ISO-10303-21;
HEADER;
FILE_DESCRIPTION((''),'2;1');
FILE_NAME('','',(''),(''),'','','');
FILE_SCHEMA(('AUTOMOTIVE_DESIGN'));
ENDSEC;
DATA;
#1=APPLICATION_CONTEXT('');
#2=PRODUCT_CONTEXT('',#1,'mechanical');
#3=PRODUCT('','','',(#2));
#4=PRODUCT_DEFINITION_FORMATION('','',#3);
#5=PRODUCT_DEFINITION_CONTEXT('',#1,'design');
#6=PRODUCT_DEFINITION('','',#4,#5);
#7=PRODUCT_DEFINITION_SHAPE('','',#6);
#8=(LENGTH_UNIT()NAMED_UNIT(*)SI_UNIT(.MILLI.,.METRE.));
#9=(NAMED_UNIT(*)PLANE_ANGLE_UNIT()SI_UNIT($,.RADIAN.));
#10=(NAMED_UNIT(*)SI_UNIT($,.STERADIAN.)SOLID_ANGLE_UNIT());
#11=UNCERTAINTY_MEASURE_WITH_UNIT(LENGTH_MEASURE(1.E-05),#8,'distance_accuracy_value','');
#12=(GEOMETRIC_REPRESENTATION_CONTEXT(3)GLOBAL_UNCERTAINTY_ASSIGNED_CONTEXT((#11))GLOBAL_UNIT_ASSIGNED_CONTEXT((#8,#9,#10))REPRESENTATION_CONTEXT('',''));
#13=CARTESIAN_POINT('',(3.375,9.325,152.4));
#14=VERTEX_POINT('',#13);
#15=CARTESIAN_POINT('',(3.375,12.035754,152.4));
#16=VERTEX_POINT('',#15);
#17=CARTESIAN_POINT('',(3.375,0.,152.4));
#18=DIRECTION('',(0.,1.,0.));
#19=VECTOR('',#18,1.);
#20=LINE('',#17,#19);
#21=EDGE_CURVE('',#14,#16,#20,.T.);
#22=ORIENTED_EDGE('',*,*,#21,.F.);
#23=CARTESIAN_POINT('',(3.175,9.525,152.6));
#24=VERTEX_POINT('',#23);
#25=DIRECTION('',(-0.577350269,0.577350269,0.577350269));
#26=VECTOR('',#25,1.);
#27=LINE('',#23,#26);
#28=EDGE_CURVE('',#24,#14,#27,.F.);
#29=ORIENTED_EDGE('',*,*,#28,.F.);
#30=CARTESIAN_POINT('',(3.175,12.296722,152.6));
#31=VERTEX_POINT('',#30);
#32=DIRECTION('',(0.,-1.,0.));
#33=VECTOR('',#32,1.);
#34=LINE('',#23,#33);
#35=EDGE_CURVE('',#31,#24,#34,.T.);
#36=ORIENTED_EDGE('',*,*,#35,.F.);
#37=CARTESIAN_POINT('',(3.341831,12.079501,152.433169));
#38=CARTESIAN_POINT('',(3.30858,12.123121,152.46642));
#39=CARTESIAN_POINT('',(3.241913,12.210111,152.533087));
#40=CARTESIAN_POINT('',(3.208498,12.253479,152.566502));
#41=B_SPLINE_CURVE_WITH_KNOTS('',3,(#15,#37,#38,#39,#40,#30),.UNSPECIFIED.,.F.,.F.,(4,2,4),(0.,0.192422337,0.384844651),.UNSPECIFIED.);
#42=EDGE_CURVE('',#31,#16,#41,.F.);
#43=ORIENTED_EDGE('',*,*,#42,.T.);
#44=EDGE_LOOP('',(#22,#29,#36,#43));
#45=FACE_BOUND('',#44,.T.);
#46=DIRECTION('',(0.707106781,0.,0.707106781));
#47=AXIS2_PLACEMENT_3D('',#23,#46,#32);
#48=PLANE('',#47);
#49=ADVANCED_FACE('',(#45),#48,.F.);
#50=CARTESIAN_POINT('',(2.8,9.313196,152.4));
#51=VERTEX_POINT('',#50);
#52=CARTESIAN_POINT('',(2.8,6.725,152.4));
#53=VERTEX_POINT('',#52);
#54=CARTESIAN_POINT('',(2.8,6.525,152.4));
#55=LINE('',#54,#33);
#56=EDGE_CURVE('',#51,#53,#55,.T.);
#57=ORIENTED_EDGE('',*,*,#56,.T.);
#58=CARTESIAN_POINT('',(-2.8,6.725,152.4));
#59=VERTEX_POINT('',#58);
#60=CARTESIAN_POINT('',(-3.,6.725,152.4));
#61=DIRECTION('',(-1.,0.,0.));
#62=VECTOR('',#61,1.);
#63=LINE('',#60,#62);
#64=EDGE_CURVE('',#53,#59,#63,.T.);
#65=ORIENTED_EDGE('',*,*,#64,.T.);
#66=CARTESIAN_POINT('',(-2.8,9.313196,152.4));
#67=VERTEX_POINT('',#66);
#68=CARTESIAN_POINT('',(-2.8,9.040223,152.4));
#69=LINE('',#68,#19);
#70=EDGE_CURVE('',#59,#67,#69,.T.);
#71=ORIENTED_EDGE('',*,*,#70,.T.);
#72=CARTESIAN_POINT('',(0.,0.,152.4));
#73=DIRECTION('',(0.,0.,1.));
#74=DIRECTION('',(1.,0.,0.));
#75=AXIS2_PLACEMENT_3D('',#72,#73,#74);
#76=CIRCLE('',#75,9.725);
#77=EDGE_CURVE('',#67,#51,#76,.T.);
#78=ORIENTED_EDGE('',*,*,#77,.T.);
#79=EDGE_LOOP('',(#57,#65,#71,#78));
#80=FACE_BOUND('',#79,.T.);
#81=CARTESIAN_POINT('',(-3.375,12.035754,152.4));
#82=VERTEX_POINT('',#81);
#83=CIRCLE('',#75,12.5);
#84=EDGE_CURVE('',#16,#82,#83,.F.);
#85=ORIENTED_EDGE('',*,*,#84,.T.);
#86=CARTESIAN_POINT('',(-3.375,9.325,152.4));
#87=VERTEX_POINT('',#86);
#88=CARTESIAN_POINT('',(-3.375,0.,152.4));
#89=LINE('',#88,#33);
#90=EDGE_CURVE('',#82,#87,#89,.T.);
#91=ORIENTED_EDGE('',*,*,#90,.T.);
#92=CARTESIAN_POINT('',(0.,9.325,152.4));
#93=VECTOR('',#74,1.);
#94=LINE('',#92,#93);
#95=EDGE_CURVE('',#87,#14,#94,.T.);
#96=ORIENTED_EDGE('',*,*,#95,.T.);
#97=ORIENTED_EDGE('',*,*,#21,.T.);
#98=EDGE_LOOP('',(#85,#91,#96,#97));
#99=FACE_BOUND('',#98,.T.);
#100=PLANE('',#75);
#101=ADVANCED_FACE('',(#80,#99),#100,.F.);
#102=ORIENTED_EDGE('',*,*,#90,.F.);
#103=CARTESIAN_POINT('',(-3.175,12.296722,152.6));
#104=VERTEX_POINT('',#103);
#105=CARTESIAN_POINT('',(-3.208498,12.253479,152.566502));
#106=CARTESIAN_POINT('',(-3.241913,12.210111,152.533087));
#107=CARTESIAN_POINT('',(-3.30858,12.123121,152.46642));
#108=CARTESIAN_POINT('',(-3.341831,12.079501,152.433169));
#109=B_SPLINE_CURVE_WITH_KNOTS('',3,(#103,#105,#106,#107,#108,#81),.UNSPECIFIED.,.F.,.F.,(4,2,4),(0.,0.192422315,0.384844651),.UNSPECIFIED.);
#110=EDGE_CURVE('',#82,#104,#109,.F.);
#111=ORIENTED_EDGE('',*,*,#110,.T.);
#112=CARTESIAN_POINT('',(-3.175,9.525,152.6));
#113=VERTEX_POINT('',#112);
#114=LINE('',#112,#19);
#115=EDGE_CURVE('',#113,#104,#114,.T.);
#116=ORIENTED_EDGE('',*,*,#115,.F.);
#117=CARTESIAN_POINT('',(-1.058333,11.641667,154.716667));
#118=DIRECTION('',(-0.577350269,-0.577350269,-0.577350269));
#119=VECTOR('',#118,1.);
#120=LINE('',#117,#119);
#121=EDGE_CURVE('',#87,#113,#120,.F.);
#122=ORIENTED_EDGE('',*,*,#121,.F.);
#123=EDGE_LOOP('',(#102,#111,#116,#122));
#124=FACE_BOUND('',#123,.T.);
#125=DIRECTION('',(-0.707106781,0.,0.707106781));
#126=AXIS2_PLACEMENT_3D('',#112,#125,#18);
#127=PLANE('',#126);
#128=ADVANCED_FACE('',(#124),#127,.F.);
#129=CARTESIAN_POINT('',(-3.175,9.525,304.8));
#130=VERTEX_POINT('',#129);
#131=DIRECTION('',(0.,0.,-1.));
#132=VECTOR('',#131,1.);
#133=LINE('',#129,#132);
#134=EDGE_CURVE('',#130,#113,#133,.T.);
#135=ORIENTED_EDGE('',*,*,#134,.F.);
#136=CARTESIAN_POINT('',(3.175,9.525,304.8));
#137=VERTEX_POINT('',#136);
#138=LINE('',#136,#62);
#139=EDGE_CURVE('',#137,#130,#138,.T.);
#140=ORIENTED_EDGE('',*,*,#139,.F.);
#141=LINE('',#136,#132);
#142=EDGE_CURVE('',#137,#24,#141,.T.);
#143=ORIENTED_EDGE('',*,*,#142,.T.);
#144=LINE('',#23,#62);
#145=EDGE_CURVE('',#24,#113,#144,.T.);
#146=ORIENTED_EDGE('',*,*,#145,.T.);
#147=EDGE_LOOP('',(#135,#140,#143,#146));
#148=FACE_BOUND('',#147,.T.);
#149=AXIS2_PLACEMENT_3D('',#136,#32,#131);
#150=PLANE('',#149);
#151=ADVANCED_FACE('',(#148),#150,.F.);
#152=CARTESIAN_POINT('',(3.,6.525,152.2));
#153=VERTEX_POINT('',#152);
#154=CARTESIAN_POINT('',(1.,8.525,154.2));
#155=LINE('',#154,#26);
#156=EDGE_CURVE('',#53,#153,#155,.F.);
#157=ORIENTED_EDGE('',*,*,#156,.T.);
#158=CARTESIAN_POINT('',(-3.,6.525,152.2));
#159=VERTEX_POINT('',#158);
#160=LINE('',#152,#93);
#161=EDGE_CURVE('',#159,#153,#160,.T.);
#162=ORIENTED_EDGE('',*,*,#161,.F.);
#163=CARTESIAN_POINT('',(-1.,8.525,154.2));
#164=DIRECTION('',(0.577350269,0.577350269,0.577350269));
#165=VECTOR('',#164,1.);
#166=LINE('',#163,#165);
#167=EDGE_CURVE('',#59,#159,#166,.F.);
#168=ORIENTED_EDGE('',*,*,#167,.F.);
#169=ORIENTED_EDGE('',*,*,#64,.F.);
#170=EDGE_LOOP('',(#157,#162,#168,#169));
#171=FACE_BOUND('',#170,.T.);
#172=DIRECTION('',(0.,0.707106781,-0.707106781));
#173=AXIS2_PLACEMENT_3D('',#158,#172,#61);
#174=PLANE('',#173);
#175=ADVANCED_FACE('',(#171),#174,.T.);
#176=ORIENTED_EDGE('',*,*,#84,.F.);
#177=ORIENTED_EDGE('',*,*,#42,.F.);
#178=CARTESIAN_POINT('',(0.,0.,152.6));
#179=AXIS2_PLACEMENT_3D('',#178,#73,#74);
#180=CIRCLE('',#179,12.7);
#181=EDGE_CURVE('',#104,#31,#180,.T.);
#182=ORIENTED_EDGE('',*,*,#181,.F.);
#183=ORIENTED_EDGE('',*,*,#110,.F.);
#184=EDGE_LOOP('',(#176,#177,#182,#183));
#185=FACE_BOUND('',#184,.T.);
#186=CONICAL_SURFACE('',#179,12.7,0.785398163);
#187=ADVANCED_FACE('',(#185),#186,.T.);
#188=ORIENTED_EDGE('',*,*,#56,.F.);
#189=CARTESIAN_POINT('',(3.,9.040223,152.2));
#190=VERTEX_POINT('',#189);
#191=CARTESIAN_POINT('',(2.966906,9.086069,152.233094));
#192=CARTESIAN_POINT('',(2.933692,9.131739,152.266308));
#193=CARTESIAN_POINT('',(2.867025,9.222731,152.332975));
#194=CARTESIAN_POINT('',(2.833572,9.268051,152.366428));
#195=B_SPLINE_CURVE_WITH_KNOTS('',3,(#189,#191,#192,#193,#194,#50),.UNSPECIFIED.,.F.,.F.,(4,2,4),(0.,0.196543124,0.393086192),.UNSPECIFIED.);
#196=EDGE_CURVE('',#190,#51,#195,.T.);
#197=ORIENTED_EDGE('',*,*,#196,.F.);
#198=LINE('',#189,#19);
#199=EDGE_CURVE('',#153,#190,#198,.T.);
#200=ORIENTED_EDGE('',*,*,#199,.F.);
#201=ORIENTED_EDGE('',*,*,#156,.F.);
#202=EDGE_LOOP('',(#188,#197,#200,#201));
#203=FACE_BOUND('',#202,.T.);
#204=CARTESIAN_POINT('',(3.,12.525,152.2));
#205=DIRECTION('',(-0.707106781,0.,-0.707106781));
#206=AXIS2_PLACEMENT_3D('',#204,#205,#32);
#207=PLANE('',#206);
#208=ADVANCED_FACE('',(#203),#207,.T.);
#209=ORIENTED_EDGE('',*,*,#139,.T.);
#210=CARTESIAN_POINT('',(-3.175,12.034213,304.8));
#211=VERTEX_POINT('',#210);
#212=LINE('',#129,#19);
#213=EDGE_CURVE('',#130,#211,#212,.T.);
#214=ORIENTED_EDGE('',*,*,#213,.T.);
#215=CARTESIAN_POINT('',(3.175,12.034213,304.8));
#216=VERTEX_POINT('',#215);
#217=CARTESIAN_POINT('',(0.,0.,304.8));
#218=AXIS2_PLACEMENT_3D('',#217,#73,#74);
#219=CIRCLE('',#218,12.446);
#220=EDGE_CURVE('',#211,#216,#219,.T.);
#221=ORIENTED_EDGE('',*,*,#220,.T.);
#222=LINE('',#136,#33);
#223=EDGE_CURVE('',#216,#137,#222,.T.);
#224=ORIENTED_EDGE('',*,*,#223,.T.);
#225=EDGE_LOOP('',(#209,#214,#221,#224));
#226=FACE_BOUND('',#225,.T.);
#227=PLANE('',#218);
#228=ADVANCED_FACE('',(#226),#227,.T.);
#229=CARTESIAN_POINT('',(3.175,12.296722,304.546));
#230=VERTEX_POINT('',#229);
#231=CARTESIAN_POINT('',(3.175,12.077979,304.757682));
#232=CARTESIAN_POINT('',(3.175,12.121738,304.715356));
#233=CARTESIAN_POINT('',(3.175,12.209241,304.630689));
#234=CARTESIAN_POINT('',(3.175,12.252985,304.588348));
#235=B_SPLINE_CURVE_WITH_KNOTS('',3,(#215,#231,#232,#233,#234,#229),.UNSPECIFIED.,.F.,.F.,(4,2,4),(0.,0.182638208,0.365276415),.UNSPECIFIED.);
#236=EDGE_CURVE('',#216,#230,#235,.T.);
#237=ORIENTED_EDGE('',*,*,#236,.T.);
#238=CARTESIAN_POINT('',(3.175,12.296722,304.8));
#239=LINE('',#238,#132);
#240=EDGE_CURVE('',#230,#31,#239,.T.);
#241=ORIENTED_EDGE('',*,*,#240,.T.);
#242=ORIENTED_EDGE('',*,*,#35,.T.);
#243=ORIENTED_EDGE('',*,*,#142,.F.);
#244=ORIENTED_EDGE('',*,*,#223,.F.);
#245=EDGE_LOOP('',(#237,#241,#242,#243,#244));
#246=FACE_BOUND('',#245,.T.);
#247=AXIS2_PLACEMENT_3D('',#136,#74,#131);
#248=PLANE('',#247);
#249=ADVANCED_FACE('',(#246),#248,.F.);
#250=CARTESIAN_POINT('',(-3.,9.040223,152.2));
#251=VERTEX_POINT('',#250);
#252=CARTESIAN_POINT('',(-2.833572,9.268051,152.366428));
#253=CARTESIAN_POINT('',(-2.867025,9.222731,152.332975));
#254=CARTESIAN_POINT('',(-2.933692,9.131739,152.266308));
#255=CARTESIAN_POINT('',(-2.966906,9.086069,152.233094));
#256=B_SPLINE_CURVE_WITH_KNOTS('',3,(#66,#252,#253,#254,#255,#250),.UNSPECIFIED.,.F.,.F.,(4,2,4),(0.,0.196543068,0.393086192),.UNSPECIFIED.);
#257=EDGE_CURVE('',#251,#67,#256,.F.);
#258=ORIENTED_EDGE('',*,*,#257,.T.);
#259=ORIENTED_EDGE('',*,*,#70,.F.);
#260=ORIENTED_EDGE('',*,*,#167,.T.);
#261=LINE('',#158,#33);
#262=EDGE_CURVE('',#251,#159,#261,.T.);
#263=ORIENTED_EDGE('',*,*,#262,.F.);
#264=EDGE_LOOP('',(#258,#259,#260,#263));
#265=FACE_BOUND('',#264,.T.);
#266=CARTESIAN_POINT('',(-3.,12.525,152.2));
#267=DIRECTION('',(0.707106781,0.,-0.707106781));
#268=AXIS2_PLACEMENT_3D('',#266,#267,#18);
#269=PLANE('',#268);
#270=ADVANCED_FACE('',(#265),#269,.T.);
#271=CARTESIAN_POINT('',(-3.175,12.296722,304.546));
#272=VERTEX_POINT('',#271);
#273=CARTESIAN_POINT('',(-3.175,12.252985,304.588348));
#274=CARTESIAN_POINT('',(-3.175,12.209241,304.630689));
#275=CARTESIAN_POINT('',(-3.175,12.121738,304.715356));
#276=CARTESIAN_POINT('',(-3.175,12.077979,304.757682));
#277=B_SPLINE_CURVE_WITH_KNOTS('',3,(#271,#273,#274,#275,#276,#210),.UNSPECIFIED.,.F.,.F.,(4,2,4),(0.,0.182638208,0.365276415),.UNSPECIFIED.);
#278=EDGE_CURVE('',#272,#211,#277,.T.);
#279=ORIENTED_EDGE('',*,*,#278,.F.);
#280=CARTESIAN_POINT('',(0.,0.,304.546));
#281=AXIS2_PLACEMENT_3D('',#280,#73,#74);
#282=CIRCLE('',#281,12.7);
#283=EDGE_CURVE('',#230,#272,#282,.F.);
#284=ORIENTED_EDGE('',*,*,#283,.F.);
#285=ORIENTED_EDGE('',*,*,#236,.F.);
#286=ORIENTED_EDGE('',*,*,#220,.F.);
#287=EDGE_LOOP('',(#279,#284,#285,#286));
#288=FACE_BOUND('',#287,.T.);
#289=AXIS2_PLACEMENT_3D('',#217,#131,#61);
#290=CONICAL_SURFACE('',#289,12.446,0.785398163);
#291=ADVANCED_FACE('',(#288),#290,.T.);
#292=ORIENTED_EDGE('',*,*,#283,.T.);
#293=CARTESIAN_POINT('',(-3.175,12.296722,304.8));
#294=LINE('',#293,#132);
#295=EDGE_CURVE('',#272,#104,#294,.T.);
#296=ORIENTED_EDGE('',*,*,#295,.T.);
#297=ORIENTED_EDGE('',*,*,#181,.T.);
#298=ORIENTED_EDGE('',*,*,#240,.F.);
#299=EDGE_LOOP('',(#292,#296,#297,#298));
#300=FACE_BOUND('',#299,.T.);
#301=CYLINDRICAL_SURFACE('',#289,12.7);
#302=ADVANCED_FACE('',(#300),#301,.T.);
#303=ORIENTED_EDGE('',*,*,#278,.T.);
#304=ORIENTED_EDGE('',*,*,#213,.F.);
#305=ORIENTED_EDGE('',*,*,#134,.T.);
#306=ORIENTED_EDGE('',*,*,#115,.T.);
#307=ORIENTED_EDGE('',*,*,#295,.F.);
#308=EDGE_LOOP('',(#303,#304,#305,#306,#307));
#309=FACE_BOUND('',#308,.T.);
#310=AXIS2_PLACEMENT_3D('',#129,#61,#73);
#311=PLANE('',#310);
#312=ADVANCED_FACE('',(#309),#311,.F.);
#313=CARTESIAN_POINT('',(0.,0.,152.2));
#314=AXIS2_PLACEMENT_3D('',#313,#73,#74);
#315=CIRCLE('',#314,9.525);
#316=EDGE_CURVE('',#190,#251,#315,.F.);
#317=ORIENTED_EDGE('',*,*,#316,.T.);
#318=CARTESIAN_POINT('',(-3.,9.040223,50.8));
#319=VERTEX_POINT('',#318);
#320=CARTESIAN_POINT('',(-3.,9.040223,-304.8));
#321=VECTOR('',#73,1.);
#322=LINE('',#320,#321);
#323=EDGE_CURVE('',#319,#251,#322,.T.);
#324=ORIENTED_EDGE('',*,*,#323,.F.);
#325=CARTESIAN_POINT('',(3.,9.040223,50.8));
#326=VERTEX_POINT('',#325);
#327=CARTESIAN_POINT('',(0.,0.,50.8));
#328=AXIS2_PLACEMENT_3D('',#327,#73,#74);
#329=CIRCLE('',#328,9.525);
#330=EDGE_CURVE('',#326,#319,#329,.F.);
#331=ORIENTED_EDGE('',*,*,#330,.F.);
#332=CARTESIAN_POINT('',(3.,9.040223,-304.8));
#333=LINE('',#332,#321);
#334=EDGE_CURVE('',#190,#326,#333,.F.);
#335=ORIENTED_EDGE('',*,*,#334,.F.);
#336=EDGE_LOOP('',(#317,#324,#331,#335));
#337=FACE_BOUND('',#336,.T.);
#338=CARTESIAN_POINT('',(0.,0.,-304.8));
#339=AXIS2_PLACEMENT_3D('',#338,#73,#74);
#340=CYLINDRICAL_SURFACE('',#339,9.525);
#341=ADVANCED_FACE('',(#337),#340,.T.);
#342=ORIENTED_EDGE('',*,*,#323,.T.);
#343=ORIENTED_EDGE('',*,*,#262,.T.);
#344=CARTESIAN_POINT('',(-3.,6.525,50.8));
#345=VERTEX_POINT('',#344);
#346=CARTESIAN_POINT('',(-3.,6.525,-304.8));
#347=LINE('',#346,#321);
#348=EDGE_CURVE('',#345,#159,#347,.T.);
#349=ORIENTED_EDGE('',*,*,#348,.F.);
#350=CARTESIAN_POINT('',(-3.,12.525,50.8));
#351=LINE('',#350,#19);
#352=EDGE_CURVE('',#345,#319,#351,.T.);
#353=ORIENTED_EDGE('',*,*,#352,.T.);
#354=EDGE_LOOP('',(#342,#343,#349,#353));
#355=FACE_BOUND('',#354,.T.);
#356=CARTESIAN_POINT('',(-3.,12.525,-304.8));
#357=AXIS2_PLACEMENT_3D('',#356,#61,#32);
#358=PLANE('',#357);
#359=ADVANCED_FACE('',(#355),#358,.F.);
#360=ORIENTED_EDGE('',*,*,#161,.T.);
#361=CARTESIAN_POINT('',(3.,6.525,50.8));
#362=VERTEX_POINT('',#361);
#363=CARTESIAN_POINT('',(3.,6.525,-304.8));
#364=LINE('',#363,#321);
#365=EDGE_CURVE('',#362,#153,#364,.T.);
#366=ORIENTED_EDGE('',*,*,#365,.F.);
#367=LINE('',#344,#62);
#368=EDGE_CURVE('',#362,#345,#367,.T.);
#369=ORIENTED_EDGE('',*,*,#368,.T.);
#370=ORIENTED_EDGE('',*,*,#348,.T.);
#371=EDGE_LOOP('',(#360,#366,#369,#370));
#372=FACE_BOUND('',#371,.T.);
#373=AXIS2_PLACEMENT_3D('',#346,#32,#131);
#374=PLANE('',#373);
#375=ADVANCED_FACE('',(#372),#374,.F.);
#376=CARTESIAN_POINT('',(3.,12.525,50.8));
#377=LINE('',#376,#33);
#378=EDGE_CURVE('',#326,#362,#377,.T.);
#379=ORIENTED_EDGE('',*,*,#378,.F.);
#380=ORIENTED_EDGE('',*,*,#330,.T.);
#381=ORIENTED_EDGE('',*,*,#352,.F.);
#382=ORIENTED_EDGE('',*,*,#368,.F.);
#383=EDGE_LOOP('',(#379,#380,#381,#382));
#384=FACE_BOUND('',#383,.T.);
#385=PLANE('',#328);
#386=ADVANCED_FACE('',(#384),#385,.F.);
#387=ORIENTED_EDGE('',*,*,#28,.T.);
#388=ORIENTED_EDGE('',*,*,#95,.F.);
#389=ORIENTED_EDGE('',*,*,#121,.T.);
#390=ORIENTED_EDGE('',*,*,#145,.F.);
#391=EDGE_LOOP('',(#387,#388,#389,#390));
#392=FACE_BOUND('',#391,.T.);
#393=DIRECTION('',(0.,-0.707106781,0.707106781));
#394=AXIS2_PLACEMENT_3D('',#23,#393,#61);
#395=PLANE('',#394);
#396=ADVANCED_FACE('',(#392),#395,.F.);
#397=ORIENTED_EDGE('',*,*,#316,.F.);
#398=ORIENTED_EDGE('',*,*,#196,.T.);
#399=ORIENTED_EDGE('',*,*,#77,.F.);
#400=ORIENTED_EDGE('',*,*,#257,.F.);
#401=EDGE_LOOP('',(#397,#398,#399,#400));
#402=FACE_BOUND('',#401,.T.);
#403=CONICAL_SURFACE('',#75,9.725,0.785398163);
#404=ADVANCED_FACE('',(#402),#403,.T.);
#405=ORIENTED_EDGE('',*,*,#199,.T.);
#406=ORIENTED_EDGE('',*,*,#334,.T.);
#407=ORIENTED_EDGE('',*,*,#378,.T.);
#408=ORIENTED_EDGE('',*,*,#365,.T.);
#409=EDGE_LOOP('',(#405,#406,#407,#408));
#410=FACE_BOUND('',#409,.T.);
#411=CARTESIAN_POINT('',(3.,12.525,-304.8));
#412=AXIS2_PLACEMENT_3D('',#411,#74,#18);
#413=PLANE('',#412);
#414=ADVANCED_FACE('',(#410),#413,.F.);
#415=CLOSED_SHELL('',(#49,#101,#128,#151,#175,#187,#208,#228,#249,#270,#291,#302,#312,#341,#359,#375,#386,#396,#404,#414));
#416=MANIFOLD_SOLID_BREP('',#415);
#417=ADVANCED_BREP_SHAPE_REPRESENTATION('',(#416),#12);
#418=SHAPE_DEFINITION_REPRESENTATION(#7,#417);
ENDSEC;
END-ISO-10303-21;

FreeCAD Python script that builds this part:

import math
import FreeCAD as App
import Part
import Sketcher
from FreeCAD import Vector
Q = App.Units.Quantity


def edges_at(feature, points):
    """Names of the edges that pass closest to the given points."""
    edges = feature.Shape.Edges
    near = lambda p: min(range(len(edges)), key=lambda i: edges[i].distToShape(Part.Vertex(*p))[0])
    return sorted({f"Edge{near(p) + 1}" for p in points})

doc = App.newDocument("Part")
params = doc.addObject("Spreadsheet::Sheet", "Params")
for row, (alias, value) in enumerate([
    ("sketch1_radius", "0.5 in"),
    ("sketch1_width", "0.25 in"),
    ("pad1_length", "12 in"),
    ("pad1_length2", "12 in"),
    ("chamfer_size", "0.01 in"),
    ("sketch2_diameter", "1 in"),
    ("sketch2_diameter2", "0.75 in"),
    ("chamfer2_size", "0.2 mm"),
    ("sketch4_diameter", "5 in"),
], start=1):
    params.set(f"A{row}", alias)
    params.set(f"B{row}", "=" + value)
    params.setAlias(f"B{row}", alias)

body = doc.addObject("PartDesign::Body", "Body")

sketch1 = body.newObject("Sketcher::SketchObject", "Sketch")
sketch1.AttachmentSupport = (doc.getObject("XY_Plane"), [""])
sketch1.MapMode = "FlatFace"
sketch1.addGeometry([
    Part.LineSegment(Vector(-3.2, 9.5, 0), Vector(-3.2, 12.3, 0)),
    Part.ArcOfCircle(Part.Circle(Vector(0, 0, 0), Vector(0, 0, 1), 12.7), math.radians(104), math.radians(436)),
    Part.LineSegment(Vector(3.2, 12.3, 0), Vector(3.2, 9.5, 0)),
    Part.LineSegment(Vector(3.2, 9.5, 0), Vector(-3.2, 9.5, 0)),
], False)
sketch1.addConstraint([
    Sketcher.Constraint("Coincident", 0, 2, 1, 1),
    Sketcher.Constraint("Coincident", 1, 2, 2, 1),
    Sketcher.Constraint("Coincident", 2, 2, 3, 1),
    Sketcher.Constraint("Coincident", 3, 2, 0, 1),
    Sketcher.Constraint("Vertical", 0),
    Sketcher.Constraint("Vertical", 2),
    Sketcher.Constraint("Horizontal", 3),
    Sketcher.Constraint("Coincident", 1, 3, -1, 1),
    Sketcher.Constraint("Horizontal", 0, 2, 1, 2),
    Sketcher.Constraint("Radius", 1, Q("0.5 in")),
    Sketcher.Constraint("DistanceX", 3, 2, 3, 1, Q("0.25 in")),
    Sketcher.Constraint("DistanceY", -1, 1, 2, 2, Q("0.375 in")),
])
sketch1.setExpression("Constraints[9]", "Params.sketch1_radius")
sketch1.setExpression("Constraints[10]", "Params.sketch1_width")
pad1 = body.newObject("PartDesign::Pad", "Pad")
pad1.Profile = sketch1
pad1.Type = "TwoLengths"
pad1.setExpression("Length", "Params.pad1_length")
pad1.setExpression("Length2", "Params.pad1_length2")
doc.recompute()

chamfer = body.newObject("PartDesign::Chamfer", "Chamfer")
chamfer.Base = (pad1, edges_at(pad1, [(0, -12.7, -304.8), (0, -12.7, 304.8)]))
chamfer.setExpression("Size", "Params.chamfer_size")

sketch2 = body.newObject("Sketcher::SketchObject", "Sketch001")
sketch2.AttachmentSupport = (doc.getObject("XY_Plane"), [""])
sketch2.MapMode = "FlatFace"
sketch2.AttachmentOffset = App.Placement(Vector(0, 0, 6 * 25.4), App.Rotation())
sketch2.addGeometry([
    Part.Circle(Vector(0, 0, 0), Vector(0, 0, 1), 13),
    Part.Circle(Vector(0, 0, 0), Vector(0, 0, 1), 10),
], False)
sketch2.addConstraint([
    Sketcher.Constraint("Coincident", 0, 3, -1, 1),
    Sketcher.Constraint("Coincident", 1, 3, -1, 1),
    Sketcher.Constraint("Diameter", 0, Q("1 in")),
    Sketcher.Constraint("Diameter", 1, Q("0.75 in")),
])
sketch2.setExpression("Constraints[2]", "Params.sketch2_diameter")
sketch2.setExpression("Constraints[3]", "Params.sketch2_diameter2")
pocket1 = body.newObject("PartDesign::Pocket", "Pocket")
pocket1.Profile = sketch2
pocket1.Type = "ThroughAll"

sketch3 = body.newObject("Sketcher::SketchObject", "Sketch002")
sketch3.AttachmentSupport = (doc.getObject("XY_Plane"), [""])
sketch3.MapMode = "FlatFace"
sketch3.AttachmentOffset = App.Placement(Vector(0, 0, 6 * 25.4), App.Rotation())
sketch3.addGeometry([
    Part.LineSegment(Vector(-3, 13, 0), Vector(-3, 7, 0)),
    Part.LineSegment(Vector(-3, 7, 0), Vector(3, 7, 0)),
    Part.LineSegment(Vector(3, 7, 0), Vector(3, 13, 0)),
    Part.LineSegment(Vector(3, 13, 0), Vector(-3, 13, 0)),
], False)
sketch3.addConstraint([
    Sketcher.Constraint("Coincident", 0, 2, 1, 1),
    Sketcher.Constraint("Coincident", 1, 2, 2, 1),
    Sketcher.Constraint("Coincident", 2, 2, 3, 1),
    Sketcher.Constraint("Coincident", 3, 2, 0, 1),
    Sketcher.Constraint("Vertical", 0),
    Sketcher.Constraint("Horizontal", 1),
    Sketcher.Constraint("Vertical", 2),
    Sketcher.Constraint("Horizontal", 3),
    Sketcher.Constraint("Equal", 3, 0),
    Sketcher.Constraint("DistanceX", 1, 1, 1, 2, Q("6 mm")),
    Sketcher.Constraint("DistanceX", 0, 2, -1, 1, Q("3 mm")),
    Sketcher.Constraint("DistanceY", -1, 1, 0, 2, Q("6.525 mm")),
])
pocket2 = body.newObject("PartDesign::Pocket", "Pocket001")
pocket2.Profile = sketch3
pocket2.Type = "ThroughAll"
doc.recompute()

chamfer2 = body.newObject("PartDesign::Chamfer", "Chamfer001")
chamfer2.Base = (pocket2, edges_at(pocket2, [
    (-3.175, 10.911, 152.4),
    (0, -12.7, 152.4),
    (3.175, 10.911, 152.4),
    (0, 9.525, 152.4),
    (0, -9.525, 152.4),
    (-3, 7.783, 152.4),
    (0, 6.525, 152.4),
    (3, 7.783, 152.4),
]))
chamfer2.setExpression("Size", "Params.chamfer2_size")

sketch4 = body.newObject("Sketcher::SketchObject", "Sketch003")
sketch4.AttachmentSupport = (doc.getObject("XY_Plane"), [""])
sketch4.MapMode = "FlatFace"
sketch4.AttachmentOffset = App.Placement(Vector(0, 0, 2 * 25.4), App.Rotation())
sketch4.addGeometry(Part.Circle(Vector(0, 0, 0), Vector(0, 0, 1), 64), False)
sketch4.addConstraint([
    Sketcher.Constraint("Coincident", 0, 3, -1, 1),
    Sketcher.Constraint("Diameter", 0, Q("5 in")),
])
sketch4.setExpression("Constraints[1]", "Params.sketch4_diameter")
pocket3 = body.newObject("PartDesign::Pocket", "Pocket002")
pocket3.Profile = sketch4
pocket3.Type = "ThroughAll"

doc.recompute()
